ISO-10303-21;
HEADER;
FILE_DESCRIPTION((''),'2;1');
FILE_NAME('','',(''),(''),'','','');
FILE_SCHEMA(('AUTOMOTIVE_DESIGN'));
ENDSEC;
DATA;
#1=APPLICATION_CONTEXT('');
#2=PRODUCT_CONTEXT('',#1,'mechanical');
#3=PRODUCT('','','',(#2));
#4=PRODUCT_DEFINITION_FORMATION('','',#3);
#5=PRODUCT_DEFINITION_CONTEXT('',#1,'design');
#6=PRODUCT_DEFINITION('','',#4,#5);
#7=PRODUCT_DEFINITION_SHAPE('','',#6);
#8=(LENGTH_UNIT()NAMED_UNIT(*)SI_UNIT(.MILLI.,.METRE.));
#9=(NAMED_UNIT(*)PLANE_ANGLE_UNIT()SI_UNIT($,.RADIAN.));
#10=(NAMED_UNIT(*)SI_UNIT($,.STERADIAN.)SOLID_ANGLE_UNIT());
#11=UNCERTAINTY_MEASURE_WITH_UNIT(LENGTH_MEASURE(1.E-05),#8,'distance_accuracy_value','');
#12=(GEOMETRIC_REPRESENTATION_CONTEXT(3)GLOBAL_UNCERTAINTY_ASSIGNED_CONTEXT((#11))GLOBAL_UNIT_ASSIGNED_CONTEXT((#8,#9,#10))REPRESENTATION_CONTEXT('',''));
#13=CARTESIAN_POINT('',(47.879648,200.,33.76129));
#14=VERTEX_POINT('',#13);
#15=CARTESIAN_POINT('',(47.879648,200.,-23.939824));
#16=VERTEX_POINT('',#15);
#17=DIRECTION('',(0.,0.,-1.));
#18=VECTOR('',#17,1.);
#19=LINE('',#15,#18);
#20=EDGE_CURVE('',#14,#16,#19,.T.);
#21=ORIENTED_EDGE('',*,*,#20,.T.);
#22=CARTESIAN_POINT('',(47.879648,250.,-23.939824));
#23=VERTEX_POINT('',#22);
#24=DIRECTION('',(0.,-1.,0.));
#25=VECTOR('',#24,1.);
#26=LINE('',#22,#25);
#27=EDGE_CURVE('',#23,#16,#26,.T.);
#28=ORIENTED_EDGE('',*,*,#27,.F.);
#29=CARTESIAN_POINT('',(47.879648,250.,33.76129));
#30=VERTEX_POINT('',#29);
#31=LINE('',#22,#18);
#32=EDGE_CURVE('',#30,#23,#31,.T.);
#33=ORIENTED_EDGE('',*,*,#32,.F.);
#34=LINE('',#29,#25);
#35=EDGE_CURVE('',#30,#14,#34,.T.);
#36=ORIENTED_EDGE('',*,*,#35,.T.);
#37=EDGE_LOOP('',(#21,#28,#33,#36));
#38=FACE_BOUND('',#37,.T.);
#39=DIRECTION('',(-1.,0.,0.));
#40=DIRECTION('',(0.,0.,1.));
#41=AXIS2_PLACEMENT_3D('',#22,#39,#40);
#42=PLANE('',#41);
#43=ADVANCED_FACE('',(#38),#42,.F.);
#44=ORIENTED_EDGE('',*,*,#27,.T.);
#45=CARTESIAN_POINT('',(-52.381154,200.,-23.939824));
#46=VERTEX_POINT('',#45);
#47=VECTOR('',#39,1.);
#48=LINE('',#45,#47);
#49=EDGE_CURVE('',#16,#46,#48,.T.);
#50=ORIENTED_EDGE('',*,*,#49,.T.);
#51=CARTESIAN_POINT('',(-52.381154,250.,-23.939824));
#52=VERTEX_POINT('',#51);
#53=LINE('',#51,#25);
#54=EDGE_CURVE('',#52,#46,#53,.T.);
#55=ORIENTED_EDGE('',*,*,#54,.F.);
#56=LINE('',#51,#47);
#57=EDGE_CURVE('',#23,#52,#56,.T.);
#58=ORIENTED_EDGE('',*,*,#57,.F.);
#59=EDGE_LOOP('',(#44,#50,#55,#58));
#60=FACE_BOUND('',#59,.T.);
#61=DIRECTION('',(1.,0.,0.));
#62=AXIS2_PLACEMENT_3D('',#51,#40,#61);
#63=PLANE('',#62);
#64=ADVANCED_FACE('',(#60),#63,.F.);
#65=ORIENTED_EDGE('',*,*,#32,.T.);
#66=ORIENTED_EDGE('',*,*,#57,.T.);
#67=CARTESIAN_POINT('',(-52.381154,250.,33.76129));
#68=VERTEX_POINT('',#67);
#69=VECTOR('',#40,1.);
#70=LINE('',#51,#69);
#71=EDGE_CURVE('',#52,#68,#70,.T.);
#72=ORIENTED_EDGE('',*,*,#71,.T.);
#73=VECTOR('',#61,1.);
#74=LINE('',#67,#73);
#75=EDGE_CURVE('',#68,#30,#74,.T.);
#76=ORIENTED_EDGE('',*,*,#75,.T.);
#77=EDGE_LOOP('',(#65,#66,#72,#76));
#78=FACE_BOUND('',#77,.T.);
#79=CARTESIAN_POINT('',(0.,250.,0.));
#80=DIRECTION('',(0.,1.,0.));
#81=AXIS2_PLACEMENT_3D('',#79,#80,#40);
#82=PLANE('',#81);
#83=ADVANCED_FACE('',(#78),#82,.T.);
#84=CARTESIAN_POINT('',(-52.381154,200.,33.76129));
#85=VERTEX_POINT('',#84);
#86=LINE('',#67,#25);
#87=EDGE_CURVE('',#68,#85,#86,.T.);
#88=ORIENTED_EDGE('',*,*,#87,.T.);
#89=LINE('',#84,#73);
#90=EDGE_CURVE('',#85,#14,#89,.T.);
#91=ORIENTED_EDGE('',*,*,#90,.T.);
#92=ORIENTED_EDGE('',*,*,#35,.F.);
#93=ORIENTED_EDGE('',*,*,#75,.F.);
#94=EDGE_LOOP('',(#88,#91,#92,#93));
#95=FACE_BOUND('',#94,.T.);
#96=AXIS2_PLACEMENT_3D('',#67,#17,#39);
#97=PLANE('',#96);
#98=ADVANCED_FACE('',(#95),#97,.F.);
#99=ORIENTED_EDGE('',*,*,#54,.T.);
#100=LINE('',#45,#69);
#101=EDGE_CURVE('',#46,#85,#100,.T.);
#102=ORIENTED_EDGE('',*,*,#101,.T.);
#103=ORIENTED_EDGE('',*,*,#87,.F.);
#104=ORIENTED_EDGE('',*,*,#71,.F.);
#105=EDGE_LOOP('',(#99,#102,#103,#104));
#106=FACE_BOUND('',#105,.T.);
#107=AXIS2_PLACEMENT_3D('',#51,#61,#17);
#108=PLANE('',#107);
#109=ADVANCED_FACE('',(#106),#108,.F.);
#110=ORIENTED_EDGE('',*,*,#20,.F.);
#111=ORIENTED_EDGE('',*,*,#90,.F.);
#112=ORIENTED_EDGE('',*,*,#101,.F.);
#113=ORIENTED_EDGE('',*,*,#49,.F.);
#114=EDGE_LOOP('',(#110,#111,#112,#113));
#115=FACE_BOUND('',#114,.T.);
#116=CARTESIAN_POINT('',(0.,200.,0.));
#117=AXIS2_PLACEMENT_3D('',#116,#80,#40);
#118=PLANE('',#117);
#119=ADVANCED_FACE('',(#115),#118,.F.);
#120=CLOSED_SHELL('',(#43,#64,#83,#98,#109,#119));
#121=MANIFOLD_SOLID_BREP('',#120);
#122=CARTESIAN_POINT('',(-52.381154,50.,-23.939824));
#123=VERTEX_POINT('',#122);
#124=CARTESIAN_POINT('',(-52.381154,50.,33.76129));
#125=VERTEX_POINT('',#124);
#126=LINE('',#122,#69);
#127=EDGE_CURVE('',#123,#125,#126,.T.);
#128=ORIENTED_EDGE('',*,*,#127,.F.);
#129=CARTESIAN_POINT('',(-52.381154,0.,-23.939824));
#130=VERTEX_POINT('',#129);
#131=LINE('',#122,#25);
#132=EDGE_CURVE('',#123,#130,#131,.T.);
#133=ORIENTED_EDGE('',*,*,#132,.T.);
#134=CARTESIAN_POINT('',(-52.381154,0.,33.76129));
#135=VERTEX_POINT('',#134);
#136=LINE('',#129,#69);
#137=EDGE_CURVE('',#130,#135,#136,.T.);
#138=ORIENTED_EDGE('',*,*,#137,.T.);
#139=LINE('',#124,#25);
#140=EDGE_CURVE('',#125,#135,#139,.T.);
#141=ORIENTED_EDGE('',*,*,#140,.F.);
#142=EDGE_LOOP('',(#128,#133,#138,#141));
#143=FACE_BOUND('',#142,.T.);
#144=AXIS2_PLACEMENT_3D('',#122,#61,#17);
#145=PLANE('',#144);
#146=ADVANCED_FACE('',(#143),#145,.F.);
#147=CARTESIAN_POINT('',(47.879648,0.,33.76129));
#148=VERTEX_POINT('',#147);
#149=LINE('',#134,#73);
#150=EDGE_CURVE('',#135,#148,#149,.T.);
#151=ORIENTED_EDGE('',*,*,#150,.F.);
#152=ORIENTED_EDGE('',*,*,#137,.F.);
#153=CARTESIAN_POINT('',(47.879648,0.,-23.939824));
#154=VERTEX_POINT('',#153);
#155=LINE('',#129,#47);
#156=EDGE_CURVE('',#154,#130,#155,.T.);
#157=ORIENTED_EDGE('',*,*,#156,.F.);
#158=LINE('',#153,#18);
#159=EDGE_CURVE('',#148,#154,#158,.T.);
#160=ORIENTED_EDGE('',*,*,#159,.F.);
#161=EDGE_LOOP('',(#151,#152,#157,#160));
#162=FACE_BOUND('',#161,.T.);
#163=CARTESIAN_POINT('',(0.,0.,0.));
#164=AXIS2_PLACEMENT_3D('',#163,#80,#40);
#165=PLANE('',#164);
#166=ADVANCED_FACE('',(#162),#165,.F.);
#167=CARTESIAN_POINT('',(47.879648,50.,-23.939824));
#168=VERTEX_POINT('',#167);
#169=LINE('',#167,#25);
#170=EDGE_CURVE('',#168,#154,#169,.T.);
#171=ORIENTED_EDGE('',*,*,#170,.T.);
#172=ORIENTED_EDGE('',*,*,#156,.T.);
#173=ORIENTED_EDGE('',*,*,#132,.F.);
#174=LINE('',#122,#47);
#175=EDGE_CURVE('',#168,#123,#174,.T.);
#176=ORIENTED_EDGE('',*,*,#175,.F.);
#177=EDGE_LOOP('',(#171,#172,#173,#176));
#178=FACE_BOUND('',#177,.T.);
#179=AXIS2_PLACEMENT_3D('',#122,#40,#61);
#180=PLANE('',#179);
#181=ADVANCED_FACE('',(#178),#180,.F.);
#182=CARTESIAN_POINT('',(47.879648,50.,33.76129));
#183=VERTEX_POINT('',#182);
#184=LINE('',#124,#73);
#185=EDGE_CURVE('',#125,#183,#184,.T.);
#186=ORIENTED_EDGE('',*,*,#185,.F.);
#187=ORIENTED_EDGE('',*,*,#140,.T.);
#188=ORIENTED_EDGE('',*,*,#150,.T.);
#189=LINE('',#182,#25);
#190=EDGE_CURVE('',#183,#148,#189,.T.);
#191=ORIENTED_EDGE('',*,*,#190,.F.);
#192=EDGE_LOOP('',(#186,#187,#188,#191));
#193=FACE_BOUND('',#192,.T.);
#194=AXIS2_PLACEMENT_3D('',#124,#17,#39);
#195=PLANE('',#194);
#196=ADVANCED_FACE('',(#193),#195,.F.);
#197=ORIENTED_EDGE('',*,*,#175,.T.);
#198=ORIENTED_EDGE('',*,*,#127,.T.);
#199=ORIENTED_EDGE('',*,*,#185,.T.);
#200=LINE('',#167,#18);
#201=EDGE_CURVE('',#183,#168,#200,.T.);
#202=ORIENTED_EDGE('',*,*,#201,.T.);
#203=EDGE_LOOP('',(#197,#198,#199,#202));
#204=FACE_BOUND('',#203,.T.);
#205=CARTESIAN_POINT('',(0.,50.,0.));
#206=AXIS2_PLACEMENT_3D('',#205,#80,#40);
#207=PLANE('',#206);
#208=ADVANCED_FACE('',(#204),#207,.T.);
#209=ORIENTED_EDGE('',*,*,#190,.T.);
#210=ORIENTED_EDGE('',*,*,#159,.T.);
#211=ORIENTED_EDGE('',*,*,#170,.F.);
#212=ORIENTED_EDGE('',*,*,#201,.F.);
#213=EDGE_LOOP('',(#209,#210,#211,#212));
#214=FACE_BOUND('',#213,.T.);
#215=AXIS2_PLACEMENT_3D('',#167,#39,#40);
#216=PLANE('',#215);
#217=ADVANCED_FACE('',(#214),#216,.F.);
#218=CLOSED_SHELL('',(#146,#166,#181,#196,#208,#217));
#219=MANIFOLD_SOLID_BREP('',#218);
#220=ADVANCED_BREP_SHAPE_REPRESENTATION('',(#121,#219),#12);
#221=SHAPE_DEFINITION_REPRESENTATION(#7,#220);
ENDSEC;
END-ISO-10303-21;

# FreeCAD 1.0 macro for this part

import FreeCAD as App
import Part
import Sketcher
from FreeCAD import Vector
Q = App.Units.Quantity

doc = App.newDocument("Part")
body = doc.addObject("PartDesign::Body", "Body")

# Sketch on XZ plane
sketch1 = body.newObject("Sketcher::SketchObject", "Sketch")
sketch1.AttachmentSupport = (doc.getObject("XZ_Plane"), [""])
sketch1.MapMode = "FlatFace"
sketch1.addGeometry([
    Part.LineSegment(Vector(-52, -24, 0), Vector(-52, 34, 0)),
    Part.LineSegment(Vector(-52, 34, 0), Vector(48, 34, 0)),
    Part.LineSegment(Vector(48, 34, 0), Vector(48, -24, 0)),
    Part.LineSegment(Vector(48, -24, 0), Vector(-52, -24, 0)),
], False)
sketch1.addConstraint([
    Sketcher.Constraint("Coincident", 0, 2, 1, 1),
    Sketcher.Constraint("Coincident", 1, 2, 2, 1),
    Sketcher.Constraint("Coincident", 2, 2, 3, 1),
    Sketcher.Constraint("Coincident", 3, 2, 0, 1),
    Sketcher.Constraint("Vertical", 0),
    Sketcher.Constraint("Horizontal", 1),
    Sketcher.Constraint("Vertical", 2),
    Sketcher.Constraint("Horizontal", 3),
    Sketcher.Constraint("DistanceX", 1, 1, 1, 2, Q("100.260802 mm")),
    Sketcher.Constraint("DistanceY", 0, 1, 0, 2, Q("57.701115 mm")),
    Sketcher.Constraint("DistanceY", -1, 1, 0, 2, Q("33.76129 mm")),
    Sketcher.Constraint("DistanceX", -1, 1, 1, 2, Q("47.879648 mm")),
])
pad1 = body.newObject("PartDesign::Pad", "Pad")
pad1.Profile = sketch1
pad1.Length = 50
pad1.Reversed = True
body2 = doc.addObject("PartDesign::Body", "Body001")

# Sketch on XZ plane
sketch2 = body2.newObject("Sketcher::SketchObject", "Sketch001")
sketch2.AttachmentSupport = (doc.getObject("XZ_Plane001"), [""])
sketch2.MapMode = "FlatFace"
sketch2.AttachmentOffset = App.Placement(Vector(0, 0, -200), App.Rotation())
sketch2.addGeometry([
    Part.LineSegment(Vector(-52, -24, 0), Vector(-52, 34, 0)),
    Part.LineSegment(Vector(-52, 34, 0), Vector(48, 34, 0)),
    Part.LineSegment(Vector(48, 34, 0), Vector(48, -24, 0)),
    Part.LineSegment(Vector(48, -24, 0), Vector(-52, -24, 0)),
], False)
sketch2.addConstraint([
    Sketcher.Constraint("Coincident", 0, 2, 1, 1),
    Sketcher.Constraint("Coincident", 1, 2, 2, 1),
    Sketcher.Constraint("Coincident", 2, 2, 3, 1),
    Sketcher.Constraint("Coincident", 3, 2, 0, 1),
    Sketcher.Constraint("Vertical", 0),
    Sketcher.Constraint("Horizontal", 1),
    Sketcher.Constraint("Vertical", 2),
    Sketcher.Constraint("Horizontal", 3),
    Sketcher.Constraint("DistanceX", 1, 1, 1, 2, Q("100.260802 mm")),
    Sketcher.Constraint("DistanceY", 0, 1, 0, 2, Q("57.701115 mm")),
    Sketcher.Constraint("DistanceY", -1, 1, 0, 2, Q("33.76129 mm")),
    Sketcher.Constraint("DistanceX", -1, 1, 1, 2, Q("47.879648 mm")),
])
pad2 = body2.newObject("PartDesign::Pad", "Pad001")
pad2.Profile = sketch2
pad2.Length = 50
pad2.Reversed = True

doc.recompute()
